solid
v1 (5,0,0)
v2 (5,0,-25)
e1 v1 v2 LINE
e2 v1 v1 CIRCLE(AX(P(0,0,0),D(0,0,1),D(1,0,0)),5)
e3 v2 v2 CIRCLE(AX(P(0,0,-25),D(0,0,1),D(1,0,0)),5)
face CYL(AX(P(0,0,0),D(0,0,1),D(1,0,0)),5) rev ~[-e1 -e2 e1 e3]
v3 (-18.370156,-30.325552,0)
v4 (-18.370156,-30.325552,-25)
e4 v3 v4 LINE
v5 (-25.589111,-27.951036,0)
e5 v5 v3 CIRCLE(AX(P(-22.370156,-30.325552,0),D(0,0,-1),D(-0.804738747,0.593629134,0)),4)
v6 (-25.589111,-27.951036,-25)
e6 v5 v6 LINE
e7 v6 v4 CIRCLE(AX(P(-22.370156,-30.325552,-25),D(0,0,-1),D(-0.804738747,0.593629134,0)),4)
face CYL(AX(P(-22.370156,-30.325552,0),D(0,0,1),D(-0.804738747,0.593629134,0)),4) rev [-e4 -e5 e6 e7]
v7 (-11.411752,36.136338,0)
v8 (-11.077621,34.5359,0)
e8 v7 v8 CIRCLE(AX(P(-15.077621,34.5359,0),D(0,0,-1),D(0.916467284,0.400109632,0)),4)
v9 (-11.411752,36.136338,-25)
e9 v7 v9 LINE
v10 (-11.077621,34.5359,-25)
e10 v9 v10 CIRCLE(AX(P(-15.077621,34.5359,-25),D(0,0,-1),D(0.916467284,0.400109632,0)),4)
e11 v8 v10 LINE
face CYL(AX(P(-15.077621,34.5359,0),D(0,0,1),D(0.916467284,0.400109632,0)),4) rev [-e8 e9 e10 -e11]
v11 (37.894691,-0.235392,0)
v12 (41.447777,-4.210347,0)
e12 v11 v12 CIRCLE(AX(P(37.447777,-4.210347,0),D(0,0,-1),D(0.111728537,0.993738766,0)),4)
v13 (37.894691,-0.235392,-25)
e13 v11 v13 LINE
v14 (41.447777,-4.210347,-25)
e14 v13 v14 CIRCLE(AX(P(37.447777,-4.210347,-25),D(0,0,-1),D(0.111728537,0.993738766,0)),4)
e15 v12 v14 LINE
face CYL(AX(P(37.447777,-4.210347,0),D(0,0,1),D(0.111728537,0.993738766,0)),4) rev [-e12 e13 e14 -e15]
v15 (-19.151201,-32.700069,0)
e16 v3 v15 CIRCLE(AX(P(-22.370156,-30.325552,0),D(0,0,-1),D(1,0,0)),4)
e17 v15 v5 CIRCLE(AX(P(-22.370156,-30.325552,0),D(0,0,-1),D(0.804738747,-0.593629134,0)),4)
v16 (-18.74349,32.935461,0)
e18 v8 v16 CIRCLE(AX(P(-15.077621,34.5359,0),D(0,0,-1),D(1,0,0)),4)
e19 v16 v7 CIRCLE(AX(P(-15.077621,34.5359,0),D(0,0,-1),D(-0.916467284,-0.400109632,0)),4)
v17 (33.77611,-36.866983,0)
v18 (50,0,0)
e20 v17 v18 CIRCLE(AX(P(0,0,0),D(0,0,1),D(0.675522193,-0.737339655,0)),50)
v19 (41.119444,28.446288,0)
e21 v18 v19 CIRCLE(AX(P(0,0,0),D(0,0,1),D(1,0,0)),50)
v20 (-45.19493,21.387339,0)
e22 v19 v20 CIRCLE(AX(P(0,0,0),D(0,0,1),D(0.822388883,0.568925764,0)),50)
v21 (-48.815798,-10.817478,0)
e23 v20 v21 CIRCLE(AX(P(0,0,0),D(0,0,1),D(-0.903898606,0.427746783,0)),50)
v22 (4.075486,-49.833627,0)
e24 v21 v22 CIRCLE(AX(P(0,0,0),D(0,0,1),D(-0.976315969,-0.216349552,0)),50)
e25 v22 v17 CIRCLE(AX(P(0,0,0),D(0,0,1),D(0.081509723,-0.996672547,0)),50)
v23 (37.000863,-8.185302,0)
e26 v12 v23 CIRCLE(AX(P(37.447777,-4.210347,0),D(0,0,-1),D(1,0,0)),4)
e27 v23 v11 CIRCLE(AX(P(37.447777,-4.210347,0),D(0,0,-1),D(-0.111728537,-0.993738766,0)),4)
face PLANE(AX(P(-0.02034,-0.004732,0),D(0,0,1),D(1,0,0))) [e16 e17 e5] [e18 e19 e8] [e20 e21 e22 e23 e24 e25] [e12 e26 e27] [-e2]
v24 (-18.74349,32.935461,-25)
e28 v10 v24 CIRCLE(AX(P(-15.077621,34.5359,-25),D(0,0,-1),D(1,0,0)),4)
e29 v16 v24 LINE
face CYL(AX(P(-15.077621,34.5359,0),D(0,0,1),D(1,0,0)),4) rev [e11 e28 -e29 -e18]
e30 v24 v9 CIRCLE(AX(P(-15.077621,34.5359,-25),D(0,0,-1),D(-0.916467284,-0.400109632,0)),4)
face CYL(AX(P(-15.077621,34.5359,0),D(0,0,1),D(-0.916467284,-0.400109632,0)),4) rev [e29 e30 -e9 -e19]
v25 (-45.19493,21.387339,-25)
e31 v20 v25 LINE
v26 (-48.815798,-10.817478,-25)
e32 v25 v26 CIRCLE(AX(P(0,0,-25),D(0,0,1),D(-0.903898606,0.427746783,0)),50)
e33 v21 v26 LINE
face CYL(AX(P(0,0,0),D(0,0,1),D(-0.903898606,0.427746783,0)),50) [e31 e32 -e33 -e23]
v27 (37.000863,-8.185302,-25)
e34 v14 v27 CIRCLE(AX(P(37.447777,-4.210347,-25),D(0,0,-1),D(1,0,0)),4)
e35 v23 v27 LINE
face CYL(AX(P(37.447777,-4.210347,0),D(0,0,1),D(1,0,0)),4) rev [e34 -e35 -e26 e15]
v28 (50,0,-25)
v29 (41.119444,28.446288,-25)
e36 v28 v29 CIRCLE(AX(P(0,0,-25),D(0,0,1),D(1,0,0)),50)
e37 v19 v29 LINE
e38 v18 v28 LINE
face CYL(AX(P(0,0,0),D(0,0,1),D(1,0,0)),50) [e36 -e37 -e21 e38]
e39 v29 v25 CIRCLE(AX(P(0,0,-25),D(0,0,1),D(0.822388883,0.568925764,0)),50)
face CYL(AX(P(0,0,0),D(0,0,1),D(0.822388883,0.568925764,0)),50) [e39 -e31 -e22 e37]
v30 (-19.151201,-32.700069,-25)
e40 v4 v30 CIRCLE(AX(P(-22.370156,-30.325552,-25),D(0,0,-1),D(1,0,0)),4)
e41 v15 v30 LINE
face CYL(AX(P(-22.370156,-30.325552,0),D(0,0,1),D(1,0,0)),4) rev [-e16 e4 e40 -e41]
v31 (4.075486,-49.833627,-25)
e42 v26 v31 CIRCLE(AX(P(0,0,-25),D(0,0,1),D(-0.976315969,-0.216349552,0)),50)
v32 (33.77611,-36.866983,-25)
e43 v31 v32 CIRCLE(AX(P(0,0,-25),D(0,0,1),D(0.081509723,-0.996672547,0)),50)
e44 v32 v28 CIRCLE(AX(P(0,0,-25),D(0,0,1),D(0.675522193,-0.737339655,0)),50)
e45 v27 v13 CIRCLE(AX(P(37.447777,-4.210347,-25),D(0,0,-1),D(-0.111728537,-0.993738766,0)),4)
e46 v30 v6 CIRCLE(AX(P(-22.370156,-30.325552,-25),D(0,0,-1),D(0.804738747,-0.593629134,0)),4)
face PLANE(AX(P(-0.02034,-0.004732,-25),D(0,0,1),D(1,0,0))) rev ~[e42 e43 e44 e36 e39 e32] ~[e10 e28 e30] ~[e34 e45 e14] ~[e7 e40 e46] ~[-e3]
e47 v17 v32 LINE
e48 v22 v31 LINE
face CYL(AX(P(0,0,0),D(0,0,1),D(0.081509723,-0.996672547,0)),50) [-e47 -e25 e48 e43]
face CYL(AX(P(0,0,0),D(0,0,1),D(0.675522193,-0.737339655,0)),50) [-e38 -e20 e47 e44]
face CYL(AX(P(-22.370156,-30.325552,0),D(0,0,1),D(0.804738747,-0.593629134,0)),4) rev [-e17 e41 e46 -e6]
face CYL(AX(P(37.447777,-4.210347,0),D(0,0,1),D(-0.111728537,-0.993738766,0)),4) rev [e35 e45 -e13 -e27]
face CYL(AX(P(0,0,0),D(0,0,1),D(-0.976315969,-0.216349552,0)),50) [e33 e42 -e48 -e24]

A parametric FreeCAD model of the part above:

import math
import FreeCAD as App
import Part
import Sketcher
Q = App.Units.Quantity

doc = App.newDocument("Part")
body = doc.addObject("PartDesign::Body", "Body")

# Sketch on XY plane
sketch1 = body.newObject("Sketcher::SketchObject", "Sketch")
sketch1.AttachmentSupport = (doc.getObject("XY_Plane"), [""])
sketch1.MapMode = "FlatFace"
sketch1.addGeometry([
    Part.ArcOfCircle(Part.Circle(App.Vector(0, 0, 0), App.Vector(0, 0, 1), 50), math.radians(35), math.radians(155)),  # 0
    Part.ArcOfCircle(Part.Circle(App.Vector(0, 0, 0), App.Vector(0, 0, 1), 50), math.radians(155), math.radians(192)),  # 1
    Part.ArcOfCircle(Part.Circle(App.Vector(0, 0, 0), App.Vector(0, 0, 1), 50), math.radians(-168), math.radians(-85)),  # 2
    Part.ArcOfCircle(Part.Circle(App.Vector(0, 0, 0), App.Vector(0, 0, 1), 50), math.radians(-85), math.radians(-48)),  # 3
    Part.ArcOfCircle(Part.Circle(App.Vector(0, 0, 0), App.Vector(0, 0, 1), 50), math.radians(-48), math.radians(0)),  # 4
    Part.ArcOfCircle(Part.Circle(App.Vector(0, 0, 0), App.Vector(0, 0, 1), 50), math.radians(0), math.radians(35)),  # 5
    Part.ArcOfCircle(Part.Circle(App.Vector(-22.4, -30.3, 0), App.Vector(0, 0, 1), 4), math.radians(0), math.radians(144)),  # 6
    Part.ArcOfCircle(Part.Circle(App.Vector(-22.4, -30.3, 0), App.Vector(0, 0, 1), 4), math.radians(-36), math.radians(0)),  # 7
    Part.ArcOfCircle(Part.Circle(App.Vector(-22.4, -30.3, 0), App.Vector(0, 0, 1), 4), math.radians(144), math.radians(324)),  # 8
    Part.ArcOfCircle(Part.Circle(App.Vector(37.4, -4.2, 0), App.Vector(0, 0, 1), 4), math.radians(84), math.radians(264)),  # 9
    Part.ArcOfCircle(Part.Circle(App.Vector(37.4, -4.2, 0), App.Vector(0, 0, 1), 4), math.radians(0), math.radians(84)),  # 10
    Part.ArcOfCircle(Part.Circle(App.Vector(37.4, -4.2, 0), App.Vector(0, 0, 1), 4), math.radians(-96), math.radians(0)),  # 11
    Part.ArcOfCircle(Part.Circle(App.Vector(-15.1, 34.5, 0), App.Vector(0, 0, 1), 4), math.radians(0), math.radians(24)),  # 12
    Part.ArcOfCircle(Part.Circle(App.Vector(-15.1, 34.5, 0), App.Vector(0, 0, 1), 4), math.radians(-156), math.radians(0)),  # 13
    Part.ArcOfCircle(Part.Circle(App.Vector(-15.1, 34.5, 0), App.Vector(0, 0, 1), 4), math.radians(24), math.radians(204)),  # 14
], False)
sketch1.addConstraint([
    Sketcher.Constraint("Tangent", 0, 2, 1, 1),
    Sketcher.Constraint("Tangent", 1, 2, 2, 1),
    Sketcher.Constraint("Tangent", 2, 2, 3, 1),
    Sketcher.Constraint("Tangent", 3, 2, 4, 1),
    Sketcher.Constraint("Tangent", 4, 2, 5, 1),
    Sketcher.Constraint("Tangent", 5, 2, 0, 1),
    Sketcher.Constraint("Tangent", 6, 1, 7, 2),
    Sketcher.Constraint("Tangent", 7, 1, 8, 2),
    Sketcher.Constraint("Tangent", 8, 1, 6, 2),
    Sketcher.Constraint("Tangent", 9, 1, 10, 2),
    Sketcher.Constraint("Tangent", 10, 1, 11, 2),
    Sketcher.Constraint("Tangent", 11, 1, 9, 2),
    Sketcher.Constraint("Tangent", 12, 1, 13, 2),
    Sketcher.Constraint("Tangent", 13, 1, 14, 2),
    Sketcher.Constraint("Tangent", 14, 1, 12, 2),
    Sketcher.Constraint("Coincident", 0, 3, -1, 1),
    Sketcher.Constraint("Coincident", 2, 3, -1, 1),
    Sketcher.Constraint("Equal", 2, 3),
    Sketcher.Constraint("Equal", 8, 9),
    Sketcher.Constraint("Equal", 11, 12),
    Sketcher.Constraint("PointOnObject", 4, 2, -1),
    Sketcher.Constraint("Horizontal", 8, 3, 6, 1),
    Sketcher.Constraint("Horizontal", 11, 3, 10, 1),
    Sketcher.Constraint("Horizontal", 14, 3, 12, 1),
    Sketcher.Constraint("Radius", 0, Q("50 mm")),
    Sketcher.Constraint("Radius", 6, Q("4 mm")),
    Sketcher.Constraint("DistanceY", -1, 1, 12, 3, Q("34.5359 mm")),
    Sketcher.Constraint("DistanceX", 1, 2, -1, 1, Q("48.815798 mm")),
    Sketcher.Constraint("DistanceX", 7, 1, -1, 1, Q("19.151201 mm")),
    Sketcher.Constraint("DistanceX", 12, 3, -1, 1, Q("15.077621 mm")),
    Sketcher.Constraint("DistanceX", 0, 2, -1, 1, Q("45.19493 mm")),
    Sketcher.Constraint("DistanceX", -1, 1, 3, 2, Q("33.77611 mm")),
    Sketcher.Constraint("DistanceY", -1, 1, 5, 2, Q("28.446288 mm")),
    Sketcher.Constraint("DistanceY", 7, 1, -1, 1, Q("32.700069 mm")),
    Sketcher.Constraint("DistanceX", 8, 1, -1, 1, Q("25.589111 mm")),
    Sketcher.Constraint("DistanceX", -1, 1, 9, 1, Q("37.894691 mm")),
    Sketcher.Constraint("DistanceX", 13, 1, -1, 1, Q("18.74349 mm")),
    Sketcher.Constraint("DistanceX", 14, 1, -1, 1, Q("11.411752 mm")),
    Sketcher.Constraint("DistanceY", 2, 2, 7, 1, Q("17.133558 mm")),
    Sketcher.Constraint("DistanceY", 9, 1, 5, 2, Q("28.68168 mm")),
    Sketcher.Constraint("DistanceX", 11, 1, 9, 1, Q("0.893828 mm")),
    Sketcher.Constraint("DistanceX", 6, 3, -1, 1, Q("22.370156 mm")),
    Sketcher.Constraint("DistanceX", -1, 1, 9, 3, Q("37.447777 mm")),
])
pad1 = body.newObject("PartDesign::Pad", "Pad")
pad1.Profile = sketch1
pad1.Length = 25
pad1.Reversed = True

# Sketch on XY plane
sketch2 = body.newObject("Sketcher::SketchObject", "Sketch001")
sketch2.AttachmentSupport = (doc.getObject("XY_Plane"), [""])
sketch2.MapMode = "FlatFace"
sketch2.addGeometry(Part.Circle(App.Vector(0, 0, 0), App.Vector(0, 0, 1), 5), False)
sketch2.addConstraint([
    Sketcher.Constraint("Coincident", 0, 3, -1, 1),
    Sketcher.Constraint("Diameter", 0, Q("10 mm")),
])
pocket1 = body.newObject("PartDesign::Pocket", "Pocket")
pocket1.Profile = sketch2
pocket1.Length = 40.9

doc.recompute()
